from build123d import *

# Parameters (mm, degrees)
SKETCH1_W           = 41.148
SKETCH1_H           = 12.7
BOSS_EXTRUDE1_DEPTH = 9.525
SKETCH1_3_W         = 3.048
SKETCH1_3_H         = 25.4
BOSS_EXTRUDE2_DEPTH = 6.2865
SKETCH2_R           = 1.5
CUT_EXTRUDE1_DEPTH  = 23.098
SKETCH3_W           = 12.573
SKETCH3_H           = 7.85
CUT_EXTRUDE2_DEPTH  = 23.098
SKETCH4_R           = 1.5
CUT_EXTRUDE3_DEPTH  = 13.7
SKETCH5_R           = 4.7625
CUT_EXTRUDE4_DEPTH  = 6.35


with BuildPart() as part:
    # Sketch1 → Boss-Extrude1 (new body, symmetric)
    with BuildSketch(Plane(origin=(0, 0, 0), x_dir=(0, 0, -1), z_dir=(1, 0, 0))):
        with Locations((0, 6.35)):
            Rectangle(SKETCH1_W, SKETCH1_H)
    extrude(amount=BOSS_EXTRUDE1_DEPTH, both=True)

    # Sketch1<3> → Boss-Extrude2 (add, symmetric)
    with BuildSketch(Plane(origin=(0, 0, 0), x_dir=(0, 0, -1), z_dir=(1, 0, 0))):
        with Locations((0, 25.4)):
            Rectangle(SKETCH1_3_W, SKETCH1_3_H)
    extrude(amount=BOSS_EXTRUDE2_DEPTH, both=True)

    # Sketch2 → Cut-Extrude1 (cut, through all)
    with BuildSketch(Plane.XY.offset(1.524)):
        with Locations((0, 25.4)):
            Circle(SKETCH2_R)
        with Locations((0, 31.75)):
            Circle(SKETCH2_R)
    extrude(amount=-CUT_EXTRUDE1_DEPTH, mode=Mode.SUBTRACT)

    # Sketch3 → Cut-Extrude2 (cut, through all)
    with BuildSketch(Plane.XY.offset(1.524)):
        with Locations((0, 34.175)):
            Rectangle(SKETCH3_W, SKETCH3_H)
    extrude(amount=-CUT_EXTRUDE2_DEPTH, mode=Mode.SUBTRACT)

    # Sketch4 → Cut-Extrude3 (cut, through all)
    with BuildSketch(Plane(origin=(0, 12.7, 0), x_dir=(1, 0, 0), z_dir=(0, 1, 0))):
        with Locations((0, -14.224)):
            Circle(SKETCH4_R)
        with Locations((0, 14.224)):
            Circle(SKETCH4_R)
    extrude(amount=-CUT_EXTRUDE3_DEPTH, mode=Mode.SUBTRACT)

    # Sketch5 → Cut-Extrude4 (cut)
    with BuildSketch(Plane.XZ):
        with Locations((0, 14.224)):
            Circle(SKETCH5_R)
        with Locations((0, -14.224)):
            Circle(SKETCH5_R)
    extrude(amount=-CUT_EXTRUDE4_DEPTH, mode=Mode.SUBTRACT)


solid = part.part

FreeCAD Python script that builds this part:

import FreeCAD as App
import Part
import Sketcher
from FreeCAD import Vector
Q = App.Units.Quantity

doc = App.newDocument("Part")
params = doc.addObject("Spreadsheet::Sheet", "Params")
for row, (alias, value) in enumerate([
    ("sketch1_width", "0.5 in"),
    ("sketch1_height", "1.62 in"),
    ("pad1_length", "0.75 in"),
    ("sketch2_width", "1 in"),
    ("sketch2_height", "0.12 in"),
    ("pad2_length", "0.495 in"),
    ("sketch4_width", "0.495 in"),
    ("sketch6_diameter", "0.375 in"),
    ("pocket4_length", "0.25 in"),
], start=1):
    params.set(f"A{row}", alias)
    params.set(f"B{row}", "=" + value)
    params.setAlias(f"B{row}", alias)

body = doc.addObject("PartDesign::Body", "Body")

sketch1 = body.newObject("Sketcher::SketchObject", "Sketch")
sketch1.AttachmentSupport = (doc.getObject("YZ_Plane"), [""])
sketch1.MapMode = "FlatFace"
sketch1.addGeometry([
    Part.LineSegment(Vector(13, 21, 0), Vector(0, 21, 0)),
    Part.LineSegment(Vector(0, 21, 0), Vector(0, -21, 0)),
    Part.LineSegment(Vector(0, -21, 0), Vector(13, -21, 0)),
    Part.LineSegment(Vector(13, -21, 0), Vector(13, 21, 0)),
], False)
sketch1.addConstraint([
    Sketcher.Constraint("Coincident", 0, 2, 1, 1),
    Sketcher.Constraint("Coincident", 1, 2, 2, 1),
    Sketcher.Constraint("Coincident", 2, 2, 3, 1),
    Sketcher.Constraint("Coincident", 3, 2, 0, 1),
    Sketcher.Constraint("Horizontal", 0),
    Sketcher.Constraint("Vertical", 1),
    Sketcher.Constraint("Horizontal", 2),
    Sketcher.Constraint("Vertical", 3),
    Sketcher.Constraint("Symmetric", 0, 2, 1, 2, -1, 1),
    Sketcher.Constraint("DistanceX", 0, 2, 0, 1, Q("0.5 in")),
    Sketcher.Constraint("DistanceY", 1, 2, 1, 1, Q("1.62 in")),
])
sketch1.setExpression("Constraints[9]", "Params.sketch1_width")
sketch1.setExpression("Constraints[10]", "Params.sketch1_height")
pad1 = body.newObject("PartDesign::Pad", "Pad")
pad1.Profile = sketch1
pad1.setExpression("Length", "Params.pad1_length")
pad1.Midplane = True

sketch2 = body.newObject("Sketcher::SketchObject", "Sketch001")
sketch2.AttachmentSupport = (doc.getObject("YZ_Plane"), [""])
sketch2.MapMode = "FlatFace"
sketch2.addGeometry([
    Part.LineSegment(Vector(38.1, 1.5, 0), Vector(12.7, 1.5, 0)),
    Part.LineSegment(Vector(12.7, 1.5, 0), Vector(12.7, -1.5, 0)),
    Part.LineSegment(Vector(12.7, -1.5, 0), Vector(38.1, -1.5, 0)),
    Part.LineSegment(Vector(38.1, -1.5, 0), Vector(38.1, 1.5, 0)),
], False)
sketch2.addConstraint([
    Sketcher.Constraint("Coincident", 0, 2, 1, 1),
    Sketcher.Constraint("Coincident", 1, 2, 2, 1),
    Sketcher.Constraint("Coincident", 2, 2, 3, 1),
    Sketcher.Constraint("Coincident", 3, 2, 0, 1),
    Sketcher.Constraint("Horizontal", 0),
    Sketcher.Constraint("Vertical", 1),
    Sketcher.Constraint("Horizontal", 2),
    Sketcher.Constraint("Vertical", 3),
    Sketcher.Constraint("DistanceX", 0, 2, 0, 1, Q("1 in")),
    Sketcher.Constraint("DistanceY", 1, 2, 1, 1, Q("0.12 in")),
    Sketcher.Constraint("DistanceX", -1, 1, 0, 2, Q("0.5 in")),
    Sketcher.Constraint("DistanceY", -1, 1, 0, 2, Q("0.06 in")),
])
sketch2.setExpression("Constraints[8]", "Params.sketch2_width")
sketch2.setExpression("Constraints[9]", "Params.sketch2_height")
pad2 = body.newObject("PartDesign::Pad", "Pad001")
pad2.Profile = sketch2
pad2.setExpression("Length", "Params.pad2_length")
pad2.Midplane = True

sketch3 = body.newObject("Sketcher::SketchObject", "Sketch002")
sketch3.AttachmentSupport = (doc.getObject("XY_Plane"), [""])
sketch3.MapMode = "FlatFace"
sketch3.AttachmentOffset = App.Placement(Vector(0, 0, 0.06 * 25.4), App.Rotation())
sketch3.addGeometry([
    Part.Circle(Vector(0, 25.4, 0), Vector(0, 0, 1), 1.5),
    Part.Circle(Vector(0, 31.8, 0), Vector(0, 0, 1), 1.5),
], False)
sketch3.addConstraint([
    Sketcher.Constraint("Equal", 0, 1),
    Sketcher.Constraint("PointOnObject", 0, 3, -2),
    Sketcher.Constraint("PointOnObject", 1, 3, -2),
    Sketcher.Constraint("DistanceY", -1, 1, 0, 3, Q("1 in")),
    Sketcher.Constraint("Diameter", 0, 3.0),
    Sketcher.Constraint("DistanceY", -1, 1, 1, 3, Q("1.25 in")),
])
pocket1 = body.newObject("PartDesign::Pocket", "Pocket")
pocket1.Profile = sketch3
pocket1.Type = "ThroughAll"

sketch4 = body.newObject("Sketcher::SketchObject", "Sketch003")
sketch4.AttachmentSupport = (doc.getObject("XY_Plane"), [""])
sketch4.MapMode = "FlatFace"
sketch4.AttachmentOffset = App.Placement(Vector(0, 0, 0.06 * 25.4), App.Rotation())
sketch4.addGeometry([
    Part.LineSegment(Vector(-6, 38, 0), Vector(-6, 30, 0)),
    Part.LineSegment(Vector(-6, 30, 0), Vector(6, 30, 0)),
    Part.LineSegment(Vector(6, 30, 0), Vector(6, 38, 0)),
    Part.LineSegment(Vector(6, 38, 0), Vector(-6, 38, 0)),
], False)
sketch4.addConstraint([
    Sketcher.Constraint("Coincident", 0, 2, 1, 1),
    Sketcher.Constraint("Coincident", 1, 2, 2, 1),
    Sketcher.Constraint("Coincident", 2, 2, 3, 1),
    Sketcher.Constraint("Coincident", 3, 2, 0, 1),
    Sketcher.Constraint("Vertical", 0),
    Sketcher.Constraint("Horizontal", 1),
    Sketcher.Constraint("Vertical", 2),
    Sketcher.Constraint("Horizontal", 3),
    Sketcher.Constraint("DistanceY", -1, 1, 2, 2, Q("1.5 in")),
    Sketcher.Constraint("DistanceX", 1, 1, 1, 2, Q("0.495 in")),
    Sketcher.Constraint("DistanceY", 0, 2, 0, 1, 7.85),
    Sketcher.Constraint("DistanceX", 0, 2, -1, 1, Q("0.2475 in")),
])
sketch4.setExpression("Constraints[9]", "Params.sketch4_width")
pocket2 = body.newObject("PartDesign::Pocket", "Pocket001")
pocket2.Profile = sketch4
pocket2.Type = "ThroughAll"

sketch5 = body.newObject("Sketcher::SketchObject", "Sketch004")
sketch5.AttachmentSupport = (doc.getObject("XZ_Plane"), [""])
sketch5.MapMode = "FlatFace"
sketch5.AttachmentOffset = App.Placement(Vector(0, 0, -0.5 * 25.4), App.Rotation())
sketch5.addGeometry([
    Part.Circle(Vector(0, 14.2, 0), Vector(0, 0, 1), 1.5),
    Part.Circle(Vector(0, -14.2, 0), Vector(0, 0, 1), 1.5),
], False)
sketch5.addConstraint([
    Sketcher.Constraint("Equal", 0, 1),
    Sketcher.Constraint("Symmetric", 0, 3, 1, 3, -1, 1),
    Sketcher.Constraint("PointOnObject", 0, 3, -2),
    Sketcher.Constraint("Diameter", 0, 3.0),
    Sketcher.Constraint("DistanceY", -1, 1, 0, 3, Q("0.56 in")),
])
pocket3 = body.newObject("PartDesign::Pocket", "Pocket002")
pocket3.Profile = sketch5
pocket3.Type = "ThroughAll"
pocket3.Reversed = True

sketch6 = body.newObject("Sketcher::SketchObject", "Sketch005")
sketch6.AttachmentSupport = (doc.getObject("XZ_Plane"), [""])
sketch6.MapMode = "FlatFace"
sketch6.addGeometry([
    Part.Circle(Vector(0, 14.2, 0), Vector(0, 0, 1), 4.8),
    Part.Circle(Vector(0, -14.2, 0), Vector(0, 0, 1), 4.8),
], False)
sketch6.addConstraint([
    Sketcher.Constraint("Equal", 0, 1),
    Sketcher.Constraint("Symmetric", 0, 3, 1, 3, -1, 1),
    Sketcher.Constraint("PointOnObject", 0, 3, -2),
    Sketcher.Constraint("Diameter", 0, Q("0.375 in")),
    Sketcher.Constraint("DistanceY", -1, 1, 0, 3, Q("0.56 in")),
])
sketch6.setExpression("Constraints[3]", "Params.sketch6_diameter")
pocket4 = body.newObject("PartDesign::Pocket", "Pocket003")
pocket4.Profile = sketch6
pocket4.setExpression("Length", "Params.pocket4_length")

doc.recompute()
